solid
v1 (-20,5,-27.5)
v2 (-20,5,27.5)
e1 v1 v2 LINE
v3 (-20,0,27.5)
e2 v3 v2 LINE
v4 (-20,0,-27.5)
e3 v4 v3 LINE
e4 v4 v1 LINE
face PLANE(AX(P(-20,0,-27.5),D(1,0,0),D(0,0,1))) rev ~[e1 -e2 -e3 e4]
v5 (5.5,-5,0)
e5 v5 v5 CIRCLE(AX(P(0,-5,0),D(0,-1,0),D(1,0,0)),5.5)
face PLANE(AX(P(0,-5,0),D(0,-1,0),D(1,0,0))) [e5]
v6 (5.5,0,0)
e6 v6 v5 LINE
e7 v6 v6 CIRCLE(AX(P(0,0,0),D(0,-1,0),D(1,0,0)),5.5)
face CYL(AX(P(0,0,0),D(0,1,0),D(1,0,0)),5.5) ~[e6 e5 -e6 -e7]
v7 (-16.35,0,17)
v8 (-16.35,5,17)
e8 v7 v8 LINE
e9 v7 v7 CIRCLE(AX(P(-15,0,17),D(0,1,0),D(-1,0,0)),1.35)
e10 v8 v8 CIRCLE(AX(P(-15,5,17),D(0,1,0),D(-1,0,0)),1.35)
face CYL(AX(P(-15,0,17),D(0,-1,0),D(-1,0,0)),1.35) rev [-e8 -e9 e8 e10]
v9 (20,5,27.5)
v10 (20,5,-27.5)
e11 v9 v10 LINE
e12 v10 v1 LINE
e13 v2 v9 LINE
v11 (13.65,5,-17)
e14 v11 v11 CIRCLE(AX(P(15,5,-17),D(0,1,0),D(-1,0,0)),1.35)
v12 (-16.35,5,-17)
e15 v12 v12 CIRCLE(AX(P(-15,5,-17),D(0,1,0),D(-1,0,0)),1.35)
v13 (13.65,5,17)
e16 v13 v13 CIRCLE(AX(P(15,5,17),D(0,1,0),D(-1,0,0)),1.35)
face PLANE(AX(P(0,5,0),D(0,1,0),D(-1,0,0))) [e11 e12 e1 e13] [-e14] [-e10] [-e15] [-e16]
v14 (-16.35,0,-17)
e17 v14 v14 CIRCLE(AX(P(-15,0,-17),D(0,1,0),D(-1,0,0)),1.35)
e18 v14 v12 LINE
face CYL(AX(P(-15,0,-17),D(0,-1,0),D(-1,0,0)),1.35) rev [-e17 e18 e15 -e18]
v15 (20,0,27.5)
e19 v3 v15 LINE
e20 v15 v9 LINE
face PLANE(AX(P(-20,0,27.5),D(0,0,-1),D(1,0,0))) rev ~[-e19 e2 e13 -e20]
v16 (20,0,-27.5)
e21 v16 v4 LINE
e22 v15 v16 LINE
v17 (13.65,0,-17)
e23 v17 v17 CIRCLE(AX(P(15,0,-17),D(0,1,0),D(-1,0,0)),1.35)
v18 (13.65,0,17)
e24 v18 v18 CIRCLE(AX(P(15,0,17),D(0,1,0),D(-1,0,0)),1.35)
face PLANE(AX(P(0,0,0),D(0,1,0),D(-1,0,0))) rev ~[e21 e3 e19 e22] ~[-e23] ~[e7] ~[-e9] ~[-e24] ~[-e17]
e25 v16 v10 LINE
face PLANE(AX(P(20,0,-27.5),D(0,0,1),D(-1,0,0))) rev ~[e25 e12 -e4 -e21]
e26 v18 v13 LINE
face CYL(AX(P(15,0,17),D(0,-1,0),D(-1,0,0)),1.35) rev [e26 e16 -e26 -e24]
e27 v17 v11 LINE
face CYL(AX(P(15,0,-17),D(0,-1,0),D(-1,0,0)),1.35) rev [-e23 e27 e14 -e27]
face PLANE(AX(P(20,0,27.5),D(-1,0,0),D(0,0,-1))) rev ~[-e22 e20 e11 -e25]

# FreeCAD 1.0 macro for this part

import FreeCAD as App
import Part
import Sketcher
from FreeCAD import Vector

doc = App.newDocument("Part")
body = doc.addObject("PartDesign::Body", "Body")

sketch1 = body.newObject("Sketcher::SketchObject", "Sketch")
sketch1.AttachmentSupport = (doc.getObject("XZ_Plane"), [""])
sketch1.MapMode = "FlatFace"
sketch1.addGeometry([
    Part.LineSegment(Vector(-20, -27.5, 0), Vector(-20, 27.5, 0)),
    Part.LineSegment(Vector(-20, 27.5, 0), Vector(20, 27.5, 0)),
    Part.LineSegment(Vector(20, 27.5, 0), Vector(20, -27.5, 0)),
    Part.LineSegment(Vector(20, -27.5, 0), Vector(-20, -27.5, 0)),
    Part.Circle(Vector(15, -17, 0), Vector(0, 0, 1), 1.4),
    Part.Circle(Vector(-15, -17, 0), Vector(0, 0, 1), 1.4),
    Part.Circle(Vector(15, 17, 0), Vector(0, 0, 1), 1.4),
    Part.Circle(Vector(-15, 17, 0), Vector(0, 0, 1), 1.4),
], False)
sketch1.addConstraint([
    Sketcher.Constraint("Coincident", 0, 2, 1, 1),
    Sketcher.Constraint("Coincident", 1, 2, 2, 1),
    Sketcher.Constraint("Coincident", 2, 2, 3, 1),
    Sketcher.Constraint("Coincident", 3, 2, 0, 1),
    Sketcher.Constraint("Vertical", 0),
    Sketcher.Constraint("Horizontal", 1),
    Sketcher.Constraint("Vertical", 2),
    Sketcher.Constraint("Horizontal", 3),
    Sketcher.Constraint("Equal", 4, 5),
    Sketcher.Constraint("Equal", 5, 6),
    Sketcher.Constraint("Equal", 6, 7),
    Sketcher.Constraint("Symmetric", 5, 3, 6, 3, -1, 1),
    Sketcher.Constraint("Symmetric", 4, 3, 7, 3, -1, 1),
    Sketcher.Constraint("Symmetric", 0, 2, 2, 2, -1, 1),
    Sketcher.Constraint("Symmetric", 4, 3, 5, 3, -2),
    Sketcher.Constraint("Diameter", 4, 2.7),
    Sketcher.Constraint("DistanceX", 1, 1, 1, 2, 40.0),
    Sketcher.Constraint("DistanceY", 0, 1, 0, 2, 55.0),
    Sketcher.Constraint("DistanceX", -1, 1, 4, 3, 15.0),
    Sketcher.Constraint("DistanceY", 4, 3, -1, 1, 17.0),
])
pad1 = body.newObject("PartDesign::Pad", "Pad")
pad1.Profile = sketch1
pad1.Length = 5
pad1.Reversed = True

sketch2 = body.newObject("Sketcher::SketchObject", "Sketch001")
sketch2.AttachmentSupport = (doc.getObject("XZ_Plane"), [""])
sketch2.MapMode = "FlatFace"
sketch2.addGeometry(Part.Circle(Vector(0, 0, 0), Vector(0, 0, 1), 6), False)
sketch2.addConstraint([
    Sketcher.Constraint("Coincident", 0, 3, -1, 1),
    Sketcher.Constraint("Diameter", 0, 11.0),
])
pad2 = body.newObject("PartDesign::Pad", "Pad001")
pad2.Profile = sketch2
pad2.Length = 5

doc.recompute()
